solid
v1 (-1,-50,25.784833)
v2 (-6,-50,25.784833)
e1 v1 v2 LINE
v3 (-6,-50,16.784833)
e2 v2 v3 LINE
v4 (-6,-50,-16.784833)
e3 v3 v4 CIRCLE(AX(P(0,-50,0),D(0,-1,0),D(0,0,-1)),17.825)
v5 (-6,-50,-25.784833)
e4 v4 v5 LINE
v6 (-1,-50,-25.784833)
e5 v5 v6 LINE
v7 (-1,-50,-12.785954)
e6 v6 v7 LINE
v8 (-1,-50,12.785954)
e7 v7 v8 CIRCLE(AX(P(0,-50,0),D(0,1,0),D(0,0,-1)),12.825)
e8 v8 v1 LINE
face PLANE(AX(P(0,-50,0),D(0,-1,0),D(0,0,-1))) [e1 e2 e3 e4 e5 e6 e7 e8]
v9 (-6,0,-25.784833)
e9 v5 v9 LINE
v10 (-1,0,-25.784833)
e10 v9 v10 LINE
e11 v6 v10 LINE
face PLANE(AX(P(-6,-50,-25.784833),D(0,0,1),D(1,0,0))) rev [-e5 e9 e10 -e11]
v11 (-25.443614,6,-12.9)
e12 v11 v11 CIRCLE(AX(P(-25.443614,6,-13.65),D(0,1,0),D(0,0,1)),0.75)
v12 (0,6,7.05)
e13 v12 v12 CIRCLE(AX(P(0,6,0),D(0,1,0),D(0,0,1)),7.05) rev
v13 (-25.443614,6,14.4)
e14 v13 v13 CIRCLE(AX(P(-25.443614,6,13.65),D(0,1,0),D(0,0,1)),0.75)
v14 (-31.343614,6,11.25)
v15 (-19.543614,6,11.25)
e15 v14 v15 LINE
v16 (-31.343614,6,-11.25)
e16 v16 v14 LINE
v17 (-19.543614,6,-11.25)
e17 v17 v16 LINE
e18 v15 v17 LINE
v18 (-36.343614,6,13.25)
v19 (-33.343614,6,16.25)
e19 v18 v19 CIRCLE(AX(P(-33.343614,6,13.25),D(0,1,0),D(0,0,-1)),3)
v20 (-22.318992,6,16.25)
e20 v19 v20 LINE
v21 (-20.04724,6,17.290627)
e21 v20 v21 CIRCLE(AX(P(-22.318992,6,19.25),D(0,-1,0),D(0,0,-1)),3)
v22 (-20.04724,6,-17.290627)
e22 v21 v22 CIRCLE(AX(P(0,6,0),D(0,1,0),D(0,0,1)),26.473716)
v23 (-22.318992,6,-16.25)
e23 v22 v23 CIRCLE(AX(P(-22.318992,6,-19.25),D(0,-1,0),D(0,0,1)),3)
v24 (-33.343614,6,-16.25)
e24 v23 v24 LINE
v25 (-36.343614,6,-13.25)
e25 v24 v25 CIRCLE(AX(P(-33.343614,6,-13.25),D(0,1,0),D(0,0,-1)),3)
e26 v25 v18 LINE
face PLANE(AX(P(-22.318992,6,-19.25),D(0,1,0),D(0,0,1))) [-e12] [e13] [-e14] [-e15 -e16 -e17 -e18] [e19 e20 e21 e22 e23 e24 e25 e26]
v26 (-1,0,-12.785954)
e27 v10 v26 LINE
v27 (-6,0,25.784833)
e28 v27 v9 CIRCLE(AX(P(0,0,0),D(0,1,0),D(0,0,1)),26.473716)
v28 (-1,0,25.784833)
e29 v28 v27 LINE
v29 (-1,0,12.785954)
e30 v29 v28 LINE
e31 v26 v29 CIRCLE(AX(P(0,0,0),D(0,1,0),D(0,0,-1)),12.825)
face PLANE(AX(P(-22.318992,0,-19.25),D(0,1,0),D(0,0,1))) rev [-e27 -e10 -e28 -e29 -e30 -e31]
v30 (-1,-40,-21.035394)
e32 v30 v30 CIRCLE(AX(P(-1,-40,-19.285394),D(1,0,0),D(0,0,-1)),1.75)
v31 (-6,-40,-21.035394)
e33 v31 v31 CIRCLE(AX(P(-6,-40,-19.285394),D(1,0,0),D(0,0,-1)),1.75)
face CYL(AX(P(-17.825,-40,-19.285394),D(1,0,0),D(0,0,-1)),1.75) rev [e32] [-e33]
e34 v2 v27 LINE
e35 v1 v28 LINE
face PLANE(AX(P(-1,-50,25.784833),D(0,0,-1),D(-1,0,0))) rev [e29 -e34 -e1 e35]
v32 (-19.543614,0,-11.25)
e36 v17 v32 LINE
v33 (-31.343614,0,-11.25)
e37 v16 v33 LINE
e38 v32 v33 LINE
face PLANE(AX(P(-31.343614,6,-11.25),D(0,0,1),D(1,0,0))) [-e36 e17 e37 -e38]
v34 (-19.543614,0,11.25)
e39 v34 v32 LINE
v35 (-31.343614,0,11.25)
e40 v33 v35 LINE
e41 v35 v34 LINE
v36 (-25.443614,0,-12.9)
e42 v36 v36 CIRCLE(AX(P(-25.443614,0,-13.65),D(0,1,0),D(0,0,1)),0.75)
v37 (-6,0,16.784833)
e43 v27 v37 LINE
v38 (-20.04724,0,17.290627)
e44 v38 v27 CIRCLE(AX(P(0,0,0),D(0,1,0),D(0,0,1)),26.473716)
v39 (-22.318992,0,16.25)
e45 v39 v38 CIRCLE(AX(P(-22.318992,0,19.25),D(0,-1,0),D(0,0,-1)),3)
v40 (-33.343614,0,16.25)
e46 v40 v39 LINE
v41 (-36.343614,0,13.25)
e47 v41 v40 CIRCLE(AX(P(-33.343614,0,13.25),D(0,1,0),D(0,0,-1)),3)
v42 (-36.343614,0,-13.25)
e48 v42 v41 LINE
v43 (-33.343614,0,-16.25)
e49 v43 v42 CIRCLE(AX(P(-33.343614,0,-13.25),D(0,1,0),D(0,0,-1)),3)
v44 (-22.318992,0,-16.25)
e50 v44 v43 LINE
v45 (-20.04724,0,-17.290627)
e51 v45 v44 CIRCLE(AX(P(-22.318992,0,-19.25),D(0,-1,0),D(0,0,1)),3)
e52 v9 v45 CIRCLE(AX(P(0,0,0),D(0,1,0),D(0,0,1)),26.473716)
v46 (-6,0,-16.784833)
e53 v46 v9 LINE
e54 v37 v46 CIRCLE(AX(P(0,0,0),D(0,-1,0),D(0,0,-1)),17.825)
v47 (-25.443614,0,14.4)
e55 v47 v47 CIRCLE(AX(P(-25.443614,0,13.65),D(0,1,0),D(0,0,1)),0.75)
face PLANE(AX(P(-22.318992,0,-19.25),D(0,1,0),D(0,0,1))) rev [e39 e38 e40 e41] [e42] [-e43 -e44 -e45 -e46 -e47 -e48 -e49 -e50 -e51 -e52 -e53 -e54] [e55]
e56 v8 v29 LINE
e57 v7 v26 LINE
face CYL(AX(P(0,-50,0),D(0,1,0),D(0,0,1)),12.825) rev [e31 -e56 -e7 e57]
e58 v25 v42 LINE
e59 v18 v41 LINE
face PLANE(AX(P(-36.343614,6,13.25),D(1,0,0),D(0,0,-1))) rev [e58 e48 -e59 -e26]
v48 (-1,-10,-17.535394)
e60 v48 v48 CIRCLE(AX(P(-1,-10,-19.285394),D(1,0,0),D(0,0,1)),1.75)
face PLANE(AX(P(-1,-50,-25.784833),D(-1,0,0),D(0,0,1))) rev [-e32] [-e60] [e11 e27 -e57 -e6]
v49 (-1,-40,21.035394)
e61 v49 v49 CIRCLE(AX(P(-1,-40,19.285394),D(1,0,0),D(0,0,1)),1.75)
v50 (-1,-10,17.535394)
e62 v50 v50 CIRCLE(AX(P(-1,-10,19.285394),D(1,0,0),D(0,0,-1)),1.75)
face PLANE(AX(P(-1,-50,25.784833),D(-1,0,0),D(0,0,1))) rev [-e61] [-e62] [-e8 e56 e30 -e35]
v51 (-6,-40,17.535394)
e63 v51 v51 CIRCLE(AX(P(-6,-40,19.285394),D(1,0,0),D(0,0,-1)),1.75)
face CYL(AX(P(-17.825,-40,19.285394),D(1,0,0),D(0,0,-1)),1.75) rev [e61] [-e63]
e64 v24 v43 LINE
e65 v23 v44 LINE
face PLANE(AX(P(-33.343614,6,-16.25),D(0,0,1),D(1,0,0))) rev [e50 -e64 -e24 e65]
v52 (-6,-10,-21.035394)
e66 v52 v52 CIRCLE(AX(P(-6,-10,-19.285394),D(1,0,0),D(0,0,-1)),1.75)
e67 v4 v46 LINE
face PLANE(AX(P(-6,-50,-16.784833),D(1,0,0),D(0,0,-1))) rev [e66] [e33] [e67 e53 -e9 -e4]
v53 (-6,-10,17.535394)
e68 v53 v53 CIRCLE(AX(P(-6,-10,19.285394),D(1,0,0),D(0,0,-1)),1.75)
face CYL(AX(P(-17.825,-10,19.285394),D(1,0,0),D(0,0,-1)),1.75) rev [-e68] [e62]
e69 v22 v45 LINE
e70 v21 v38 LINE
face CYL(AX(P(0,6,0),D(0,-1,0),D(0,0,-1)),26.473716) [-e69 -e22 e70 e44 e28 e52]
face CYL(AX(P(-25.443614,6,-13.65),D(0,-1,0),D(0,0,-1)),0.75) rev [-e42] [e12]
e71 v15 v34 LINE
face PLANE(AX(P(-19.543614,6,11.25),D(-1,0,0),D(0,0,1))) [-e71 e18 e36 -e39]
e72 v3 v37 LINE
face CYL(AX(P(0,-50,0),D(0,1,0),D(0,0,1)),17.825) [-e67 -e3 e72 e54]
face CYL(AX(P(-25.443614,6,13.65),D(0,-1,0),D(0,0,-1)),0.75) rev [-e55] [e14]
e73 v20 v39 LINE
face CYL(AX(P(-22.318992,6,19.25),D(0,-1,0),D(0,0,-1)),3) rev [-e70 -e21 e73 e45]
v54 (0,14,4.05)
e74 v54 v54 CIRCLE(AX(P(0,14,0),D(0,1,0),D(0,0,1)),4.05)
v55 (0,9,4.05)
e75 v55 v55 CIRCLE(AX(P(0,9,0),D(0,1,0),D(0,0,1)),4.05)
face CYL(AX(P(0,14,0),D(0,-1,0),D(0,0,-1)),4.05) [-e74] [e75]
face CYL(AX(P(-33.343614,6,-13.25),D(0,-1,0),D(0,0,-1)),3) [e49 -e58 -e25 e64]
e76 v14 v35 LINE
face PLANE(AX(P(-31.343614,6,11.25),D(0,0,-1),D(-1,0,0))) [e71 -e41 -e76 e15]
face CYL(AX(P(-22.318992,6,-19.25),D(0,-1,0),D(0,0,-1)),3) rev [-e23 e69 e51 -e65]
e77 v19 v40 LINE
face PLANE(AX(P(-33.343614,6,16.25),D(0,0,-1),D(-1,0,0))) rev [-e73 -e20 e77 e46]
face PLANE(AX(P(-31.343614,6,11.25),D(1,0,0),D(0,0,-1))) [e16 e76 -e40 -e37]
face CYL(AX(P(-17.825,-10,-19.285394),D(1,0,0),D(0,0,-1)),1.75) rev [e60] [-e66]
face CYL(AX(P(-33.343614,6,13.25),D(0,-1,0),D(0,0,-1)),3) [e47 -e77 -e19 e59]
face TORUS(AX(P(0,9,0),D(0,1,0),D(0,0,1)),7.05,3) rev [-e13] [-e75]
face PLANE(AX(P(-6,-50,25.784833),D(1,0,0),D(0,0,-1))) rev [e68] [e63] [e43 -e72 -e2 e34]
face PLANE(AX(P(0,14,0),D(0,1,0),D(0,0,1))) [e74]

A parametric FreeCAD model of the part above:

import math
import FreeCAD as App
import Part
import Sketcher
from FreeCAD import Vector


def edges_at(feature, points):
    """Names of the edges that pass closest to the given points."""
    edges = feature.Shape.Edges
    near = lambda p: min(range(len(edges)), key=lambda i: edges[i].distToShape(Part.Vertex(*p))[0])
    return sorted({f"Edge{near(p) + 1}" for p in points})


def add_polygon(sketch, points):
    """Adds a closed chain of lines whose ends are joined by coincident constraints."""
    first, n = sketch.GeometryCount, len(points)
    for a, b in zip(points, points[1:] + points[:1]):
        sketch.addGeometry(Part.LineSegment(App.Vector(*a, 0), App.Vector(*b, 0)), False)
    for i in range(n):
        sketch.addConstraint(Sketcher.Constraint("Coincident", first + i, 2, first + (i + 1) % n, 1))

doc = App.newDocument("Part")
body = doc.addObject("PartDesign::Body", "Body")

# Sketch on XZ plane
sketch1 = doc.addObject("Sketcher::SketchObject", "Sketch")
body.addObject(sketch1)
sketch1.AttachmentSupport = (doc.XZ_Plane, [""])
sketch1.MapMode = "FlatFace"
sketch1.addGeometry([
    Part.LineSegment(Vector(-1, 13, 0), Vector(-1, 26, 0)),  # 0
    Part.LineSegment(Vector(-1, 26, 0), Vector(-6, 26, 0)),  # 1
    Part.LineSegment(Vector(-6, 26, 0), Vector(-6, 17, 0)),  # 2
    Part.ArcOfCircle(Part.Circle(Vector(0, 0, 0), Vector(0, 0, 1), 18), math.radians(110), math.radians(250)),  # 3
    Part.LineSegment(Vector(-6, -17, 0), Vector(-6, -26, 0)),  # 4
    Part.LineSegment(Vector(-6, -26, 0), Vector(-1, -26, 0)),  # 5
    Part.LineSegment(Vector(-1, -26, 0), Vector(-1, -13, 0)),  # 6
    Part.ArcOfCircle(Part.Circle(Vector(0, 0, 0), Vector(0, 0, 1), 13), math.radians(94), math.radians(266)),  # 7
], False)
sketch1.addConstraint([
    Sketcher.Constraint("Coincident", 0, 2, 1, 1),
    Sketcher.Constraint("Coincident", 1, 2, 2, 1),
    Sketcher.Constraint("Coincident", 2, 2, 3, 1),
    Sketcher.Constraint("Coincident", 3, 2, 4, 1),
    Sketcher.Constraint("Coincident", 4, 2, 5, 1),
    Sketcher.Constraint("Coincident", 5, 2, 6, 1),
    Sketcher.Constraint("Coincident", 6, 2, 7, 2),
    Sketcher.Constraint("Coincident", 7, 1, 0, 1),
    Sketcher.Constraint("Vertical", 0),
    Sketcher.Constraint("Horizontal", 1),
    Sketcher.Constraint("Vertical", 2),
    Sketcher.Constraint("Vertical", 4),
    Sketcher.Constraint("Horizontal", 5),
    Sketcher.Constraint("Vertical", 6),
    Sketcher.Constraint("Coincident", 3, 3, -1, 1),
    Sketcher.Constraint("Coincident", 7, 3, -1, 1),
    Sketcher.Constraint("Symmetric", 1, 2, 4, 2, -1),
    Sketcher.Constraint("Vertical", 0, 2, 5, 2),
    Sketcher.Constraint("DistanceX", 1, 2, 1, 1, 5.0),
    Sketcher.Constraint("DistanceY", 2, 2, 2, 1, 9.0),
    Sketcher.Constraint("DistanceX", 0, 2, -1, 1, 1.0),
    Sketcher.Constraint("Radius", 3, 17.825),
    Sketcher.Constraint("Radius", 7, 12.825),
])
pad1 = doc.addObject("PartDesign::Pad", "Pad")
body.addObject(pad1)
pad1.Profile = sketch1
pad1.Length = 50

# Sketch on YZ plane
sketch2 = doc.addObject("Sketcher::SketchObject", "Sketch001")
body.addObject(sketch2)
sketch2.AttachmentSupport = (doc.YZ_Plane, [""])
sketch2.MapMode = "FlatFace"
sketch2.AttachmentOffset = App.Placement(Vector(0, 0, -1), App.Rotation())
sketch2.addGeometry([
    Part.Circle(Vector(-10, 19.3, 0), Vector(0, 0, 1), 1.8),
    Part.Circle(Vector(-40, 19.3, 0), Vector(0, 0, 1), 1.8),
    Part.Circle(Vector(-40, -19.3, 0), Vector(0, 0, 1), 1.8),
    Part.Circle(Vector(-10, -19.3, 0), Vector(0, 0, 1), 1.8),
], False)
sketch2.addConstraint([
    Sketcher.Constraint("Equal", 0, 1),
    Sketcher.Constraint("Equal", 1, 2),
    Sketcher.Constraint("Equal", 2, 3),
    Sketcher.Constraint("Symmetric", 1, 3, 2, 3, -1),
    Sketcher.Constraint("Symmetric", 0, 3, 3, 3, -1),
    Sketcher.Constraint("Horizontal", 0, 3, 1, 3),
    Sketcher.Constraint("Diameter", 0, 3.5),
    Sketcher.Constraint("DistanceX", 0, 3, -1, 1, 10.0),
    Sketcher.Constraint("DistanceX", 1, 3, -1, 1, 40.0),
    Sketcher.Constraint("DistanceY", -1, 1, 0, 3, 19.285394),
])
pocket1 = doc.addObject("PartDesign::Pocket", "Pocket")
body.addObject(pocket1)
pocket1.Profile = sketch2
pocket1.Type = "ThroughAll"

# Sketch on XZ plane
sketch3 = doc.addObject("Sketcher::SketchObject", "Sketch002")
body.addObject(sketch3)
sketch3.AttachmentSupport = (doc.XZ_Plane, [""])
sketch3.MapMode = "FlatFace"
sketch3.addGeometry(Part.LineSegment(Vector(-33.3, 16.2, 0), Vector(-22.3, 16.2, 0)), False)  # 0
sketch3.addGeometry(Part.ArcOfCircle(Part.Circle(Vector(-22.3, 19.3, 0), Vector(0, 0, 1), 3), math.radians(-90), math.radians(-41)), False)  # 1
sketch3.addGeometry(Part.ArcOfCircle(Part.Circle(Vector(0, 0, 0), Vector(0, 0, 1), 26.5), math.radians(-139), math.radians(139)), False)  # 2
sketch3.addGeometry(Part.ArcOfCircle(Part.Circle(Vector(-22.3, -19.3, 0), Vector(0, 0, 1), 3), math.radians(41), math.radians(90)), False)  # 3
sketch3.addGeometry(Part.LineSegment(Vector(-22.3, -16.2, 0), Vector(-33.3, -16.2, 0)), False)  # 4
sketch3.addGeometry(Part.ArcOfCircle(Part.Circle(Vector(-33.3, -13.3, 0), Vector(0, 0, 1), 3), math.radians(180), math.radians(270)), False)  # 5
sketch3.addGeometry(Part.LineSegment(Vector(-36.3, -13.2, 0), Vector(-36.3, 13.2, 0)), False)  # 6
sketch3.addGeometry(Part.ArcOfCircle(Part.Circle(Vector(-33.3, 13.3, 0), Vector(0, 0, 1), 3), math.radians(90), math.radians(180)), False)  # 7
sketch3.addGeometry(Part.Circle(Vector(-25.4, 13.7, 0), Vector(0, 0, 1), 0.8), False)  # 8
add_polygon(sketch3, [(-19.5, 11.2), (-31.3, 11.2), (-31.3, -11.2), (-19.5, -11.2)])  # lines 9-12
sketch3.addGeometry(Part.Circle(Vector(-25.4, -13.7, 0), Vector(0, 0, 1), 0.8), False)  # 13
sketch3.addConstraint([
    Sketcher.Constraint("Tangent", 0, 2, 1, 1),
    Sketcher.Constraint("Tangent", 1, 2, 2, 2),
    Sketcher.Constraint("Tangent", 2, 1, 3, 1),
    Sketcher.Constraint("Tangent", 3, 2, 4, 1),
    Sketcher.Constraint("Tangent", 4, 2, 5, 2),
    Sketcher.Constraint("Tangent", 5, 1, 6, 1),
    Sketcher.Constraint("Tangent", 6, 2, 7, 2),
    Sketcher.Constraint("Tangent", 7, 1, 0, 1),
    Sketcher.Constraint("Horizontal", 0),
    Sketcher.Constraint("Horizontal", 4),
    Sketcher.Constraint("Vertical", 6),
    Sketcher.Constraint("Horizontal", 9),
    Sketcher.Constraint("Vertical", 10),
    Sketcher.Constraint("Horizontal", 11),
    Sketcher.Constraint("Vertical", 12),
    Sketcher.Constraint("Coincident", 2, 3, -1, 1),
    Sketcher.Constraint("Equal", 1, 3),
    Sketcher.Constraint("Equal", 3, 5),
    Sketcher.Constraint("Equal", 5, 7),
    Sketcher.Constraint("Equal", 8, 13),
    Sketcher.Constraint("Symmetric", 8, 3, 13, 3, -1),
    Sketcher.Constraint("Vertical", 1, 3, 3, 3),
    Sketcher.Constraint("Radius", 1, 3.0),
    Sketcher.Constraint("Diameter", 8, 1.5),
    Sketcher.Constraint("DistanceX", 9, 2, 9, 1, 11.8),
    Sketcher.Constraint("DistanceY", 6, 1, 6, 2, 26.5),
    Sketcher.Constraint("DistanceY", 10, 2, 10, 1, 22.5),
    Sketcher.Constraint("DistanceX", 7, 3, 9, 2, 2.0),
    Sketcher.Constraint("DistanceY", 9, 2, 7, 3, 2.0),
    Sketcher.Constraint("DistanceY", 8, 3, 1, 3, 5.6),
    Sketcher.Constraint("DistanceX", 7, 3, 8, 3, 7.9),
    Sketcher.Constraint("Radius", 2, 26.473716),
    Sketcher.Constraint("DistanceX", 0, 1, 0, 2, 11.024622),
])
pad2 = doc.addObject("PartDesign::Pad", "Pad001")
body.addObject(pad2)
pad2.Profile = sketch3
pad2.Length = 6
pad2.Reversed = True

# Sketch on XZ plane
sketch4 = doc.addObject("Sketcher::SketchObject", "Sketch003")
body.addObject(sketch4)
sketch4.AttachmentSupport = (doc.XZ_Plane, [""])
sketch4.MapMode = "FlatFace"
sketch4.AttachmentOffset = App.Placement(Vector(0, 0, -6), App.Rotation())
sketch4.addGeometry(Part.Circle(Vector(0, 0, 0), Vector(0, 0, 1), 4), False)
sketch4.addConstraint([
    Sketcher.Constraint("Coincident", 0, 3, -1, 1),
    Sketcher.Constraint("Diameter", 0, 8.1),
])
pad3 = doc.addObject("PartDesign::Pad", "Pad002")
body.addObject(pad3)
pad3.Profile = sketch4
pad3.Length = 8
pad3.Reversed = True
doc.recompute()

fillet = doc.addObject("PartDesign::Fillet", "Fillet")
body.addObject(fillet)
fillet.Base = (pad3, edges_at(pad3, [(0, 6, -4.05)]))
fillet.Radius = 3

doc.recompute()
